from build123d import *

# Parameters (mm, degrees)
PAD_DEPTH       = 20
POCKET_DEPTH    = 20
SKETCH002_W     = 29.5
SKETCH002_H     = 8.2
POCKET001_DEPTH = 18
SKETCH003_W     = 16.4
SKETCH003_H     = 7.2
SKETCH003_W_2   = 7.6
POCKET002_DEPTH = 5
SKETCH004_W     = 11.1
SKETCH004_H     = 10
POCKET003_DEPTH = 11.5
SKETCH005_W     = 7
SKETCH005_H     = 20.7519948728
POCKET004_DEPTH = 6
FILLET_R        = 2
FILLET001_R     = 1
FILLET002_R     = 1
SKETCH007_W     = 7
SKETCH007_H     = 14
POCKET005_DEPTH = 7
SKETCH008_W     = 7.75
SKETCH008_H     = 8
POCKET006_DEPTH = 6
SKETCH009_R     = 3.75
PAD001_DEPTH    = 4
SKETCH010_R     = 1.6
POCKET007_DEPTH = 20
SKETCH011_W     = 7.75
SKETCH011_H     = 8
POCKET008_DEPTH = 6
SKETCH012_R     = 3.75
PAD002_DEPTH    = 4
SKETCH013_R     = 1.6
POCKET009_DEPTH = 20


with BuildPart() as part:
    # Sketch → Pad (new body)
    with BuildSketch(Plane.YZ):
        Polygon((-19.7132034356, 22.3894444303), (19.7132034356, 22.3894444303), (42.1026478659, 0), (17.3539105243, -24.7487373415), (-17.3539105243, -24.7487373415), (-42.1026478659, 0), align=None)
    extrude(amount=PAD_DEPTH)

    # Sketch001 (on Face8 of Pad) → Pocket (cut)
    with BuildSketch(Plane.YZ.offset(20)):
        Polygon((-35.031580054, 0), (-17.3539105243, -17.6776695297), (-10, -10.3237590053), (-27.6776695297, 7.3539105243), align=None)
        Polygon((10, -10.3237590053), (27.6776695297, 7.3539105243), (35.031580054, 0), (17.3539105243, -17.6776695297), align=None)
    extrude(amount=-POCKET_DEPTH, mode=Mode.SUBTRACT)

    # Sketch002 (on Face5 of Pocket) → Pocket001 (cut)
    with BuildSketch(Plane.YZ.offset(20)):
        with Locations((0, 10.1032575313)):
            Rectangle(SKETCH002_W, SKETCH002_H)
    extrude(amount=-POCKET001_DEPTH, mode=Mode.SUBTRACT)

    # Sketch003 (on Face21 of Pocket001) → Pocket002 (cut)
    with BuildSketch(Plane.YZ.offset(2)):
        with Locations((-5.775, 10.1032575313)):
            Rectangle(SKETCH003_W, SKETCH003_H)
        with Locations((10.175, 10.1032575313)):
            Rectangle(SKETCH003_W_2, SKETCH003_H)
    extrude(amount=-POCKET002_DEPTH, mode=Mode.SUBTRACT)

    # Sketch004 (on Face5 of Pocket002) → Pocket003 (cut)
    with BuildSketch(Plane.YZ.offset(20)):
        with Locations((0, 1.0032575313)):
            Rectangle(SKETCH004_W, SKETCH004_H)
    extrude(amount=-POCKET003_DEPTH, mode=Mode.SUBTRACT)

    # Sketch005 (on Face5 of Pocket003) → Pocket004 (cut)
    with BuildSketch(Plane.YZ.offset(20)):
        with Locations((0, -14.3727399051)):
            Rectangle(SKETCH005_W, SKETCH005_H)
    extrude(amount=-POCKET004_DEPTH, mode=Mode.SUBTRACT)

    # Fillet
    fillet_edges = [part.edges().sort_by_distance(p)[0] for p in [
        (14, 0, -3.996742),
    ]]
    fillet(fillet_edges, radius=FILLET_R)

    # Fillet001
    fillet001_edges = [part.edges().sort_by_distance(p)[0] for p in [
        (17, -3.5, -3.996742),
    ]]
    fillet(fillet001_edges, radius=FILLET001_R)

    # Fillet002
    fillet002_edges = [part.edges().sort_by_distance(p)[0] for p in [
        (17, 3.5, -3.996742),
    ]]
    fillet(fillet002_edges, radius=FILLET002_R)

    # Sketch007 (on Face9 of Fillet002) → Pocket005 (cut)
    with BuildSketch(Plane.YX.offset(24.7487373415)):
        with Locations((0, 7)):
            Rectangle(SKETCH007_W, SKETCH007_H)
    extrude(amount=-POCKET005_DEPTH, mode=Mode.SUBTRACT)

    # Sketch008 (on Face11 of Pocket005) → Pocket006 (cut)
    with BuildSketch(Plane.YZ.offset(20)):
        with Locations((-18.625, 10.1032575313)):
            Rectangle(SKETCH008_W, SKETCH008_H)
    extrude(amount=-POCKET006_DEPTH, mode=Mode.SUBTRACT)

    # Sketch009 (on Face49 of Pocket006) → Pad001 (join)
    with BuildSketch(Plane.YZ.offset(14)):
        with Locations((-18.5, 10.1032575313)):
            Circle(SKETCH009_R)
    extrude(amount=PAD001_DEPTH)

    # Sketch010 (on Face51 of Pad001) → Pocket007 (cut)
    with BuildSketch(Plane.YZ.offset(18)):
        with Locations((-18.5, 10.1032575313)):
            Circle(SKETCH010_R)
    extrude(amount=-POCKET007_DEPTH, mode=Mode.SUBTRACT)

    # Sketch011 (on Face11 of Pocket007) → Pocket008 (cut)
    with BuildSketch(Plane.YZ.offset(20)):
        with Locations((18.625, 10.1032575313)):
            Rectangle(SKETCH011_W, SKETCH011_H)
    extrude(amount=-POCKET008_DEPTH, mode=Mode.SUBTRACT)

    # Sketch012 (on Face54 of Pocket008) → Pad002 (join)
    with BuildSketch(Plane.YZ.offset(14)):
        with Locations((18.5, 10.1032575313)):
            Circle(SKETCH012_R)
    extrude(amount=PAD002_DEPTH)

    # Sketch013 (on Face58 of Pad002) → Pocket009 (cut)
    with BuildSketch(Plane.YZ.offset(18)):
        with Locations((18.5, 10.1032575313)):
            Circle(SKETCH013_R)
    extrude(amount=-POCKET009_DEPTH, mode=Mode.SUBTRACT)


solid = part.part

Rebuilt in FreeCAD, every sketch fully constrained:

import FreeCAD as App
import Part
import Sketcher
from FreeCAD import Vector
Q = App.Units.Quantity


def edges_at(feature, points):
    """Names of the edges that pass closest to the given points."""
    edges = feature.Shape.Edges
    near = lambda p: min(range(len(edges)), key=lambda i: edges[i].distToShape(Part.Vertex(*p))[0])
    return sorted({f"Edge{near(p) + 1}" for p in points})


def add_polygon(sketch, points):
    """Adds a closed chain of lines whose ends are joined by coincident constraints."""
    first, n = sketch.GeometryCount, len(points)
    for a, b in zip(points, points[1:] + points[:1]):
        sketch.addGeometry(Part.LineSegment(App.Vector(*a, 0), App.Vector(*b, 0)), False)
    for i in range(n):
        sketch.addConstraint(Sketcher.Constraint("Coincident", first + i, 2, first + (i + 1) % n, 1))

doc = App.newDocument("Part")
params = doc.addObject("Spreadsheet::Sheet", "Params")
for row, (alias, value) in enumerate([
    ("sketch1_length", "35 mm"),
    ("pad1_length", "20 mm"),
    ("sketch2_length", "25 mm"),
    ("sketch2_length2", "10.4 mm"),
    ("pocket1_length", "20 mm"),
    ("sketch3_width", "29.5 mm"),
    ("sketch3_height", "8.2 mm"),
    ("pocket2_length", "18 mm"),
    ("sketch4_width", "16.4 mm"),
    ("sketch4_width2", "7.6 mm"),
    ("sketch4_height", "7.2 mm"),
    ("pocket3_length", "5 mm"),
    ("sketch5_height", "10 mm"),
    ("sketch5_width", "11.1 mm"),
    ("pocket4_length", "11.5 mm"),
    ("sketch6_width", "7 mm"),
    ("pocket5_length", "6 mm"),
    ("fillet_radius", "2 mm"),
    ("fillet2_radius", "1 mm"),
    ("fillet3_radius", "1 mm"),
    ("sketch7_width", "14 mm"),
    ("sketch7_height", "7 mm"),
    ("pocket6_length", "7 mm"),
    ("sketch8_height", "8 mm"),
    ("sketch8_width", "7.75 mm"),
    ("pocket7_length", "6 mm"),
    ("sketch9_diameter", "7.5 mm"),
    ("pad2_length", "4 mm"),
    ("sketch10_diameter", "3.2 mm"),
    ("pocket8_length", "20 mm"),
    ("sketch11_height", "8 mm"),
    ("sketch11_width", "7.75 mm"),
    ("pocket9_length", "6 mm"),
    ("sketch12_diameter", "7.5 mm"),
    ("pad3_length", "4 mm"),
    ("sketch13_diameter", "3.2 mm"),
    ("pocket10_length", "20 mm"),
], start=1):
    params.set(f"A{row}", alias)
    params.set(f"B{row}", "=" + value)
    params.setAlias(f"B{row}", alias)

body = doc.addObject("PartDesign::Body", "Body")

sketch1 = doc.addObject("Sketcher::SketchObject", "Sketch")
body.addObject(sketch1)
sketch1.AttachmentSupport = (doc.YZ_Plane, [""])
sketch1.MapMode = "FlatFace"
add_polygon(sketch1, [(20, 22), (-20, 22), (-42, 0), (-17, -25), (17, -25), (42, 0)])
sketch1.addConstraint(Sketcher.Constraint("Horizontal", 0))
sketch1.addConstraint(Sketcher.Constraint("Horizontal", 3))
sketch1.addConstraint(Sketcher.Constraint("Symmetric", 1, 2, 4, 2, -1, 1))
sketch1.addConstraint(Sketcher.Constraint("PointOnObject", 1, 2, -1))
sketch1.addConstraint(Sketcher.Constraint("Perpendicular", 1, 2))
sketch1.addConstraint(Sketcher.Constraint("Perpendicular", 2, 4))
sketch1.addConstraint(Sketcher.Constraint("Perpendicular", 4, 5))
sketch1.addConstraint(Sketcher.Constraint("Equal", 2, 4))
sketch1.addConstraint(Sketcher.Constraint("Distance", 2, Q("35 mm")))
sketch1.addConstraint(Sketcher.Constraint("DistanceX", 3, 1, 3, 2, Q("34.707821 mm")))
sketch1.addConstraint(Sketcher.Constraint("DistanceX", 0, 2, 0, 1, Q("39.426407 mm")))
sketch1.setExpression("Constraints[14]", "Params.sketch1_length")
pad1 = doc.addObject("PartDesign::Pad", "Pad")
body.addObject(pad1)
pad1.Profile = sketch1
pad1.setExpression("Length", "Params.pad1_length")

sketch2 = doc.addObject("Sketcher::SketchObject", "Sketch001")
body.addObject(sketch2)
sketch2.AttachmentSupport = (doc.YZ_Plane, [""])
sketch2.MapMode = "FlatFace"
sketch2.AttachmentOffset = App.Placement(Vector(0, 0, 20), App.Rotation())
add_polygon(sketch2, [(-35, 0), (-17, -18), (-10, -10), (-28, 7)])
add_polygon(sketch2, [(28, 7), (10, -10), (17, -18), (35, 0)])
sketch2.addConstraint(Sketcher.Constraint("Symmetric", 3, 2, 6, 2, -1, 1))
sketch2.addConstraint(Sketcher.Constraint("Symmetric", 1, 2, 4, 2, -2))
sketch2.addConstraint(Sketcher.Constraint("Symmetric", 0, 2, 5, 2, -2))
sketch2.addConstraint(Sketcher.Constraint("Symmetric", 2, 2, 7, 2, -2))
sketch2.addConstraint(Sketcher.Constraint("PointOnObject", 3, 2, -1))
sketch2.addConstraint(Sketcher.Constraint("Perpendicular", 0, 1))
sketch2.addConstraint(Sketcher.Constraint("Perpendicular", 1, 2))
sketch2.addConstraint(Sketcher.Constraint("Perpendicular", 2, 3))
sketch2.addConstraint(Sketcher.Constraint("Parallel", 3, 4))
sketch2.addConstraint(Sketcher.Constraint("Distance", 0, Q("25 mm")))
sketch2.addConstraint(Sketcher.Constraint("DistanceX", 1, 2, -1, 1, Q("10 mm")))
sketch2.addConstraint(Sketcher.Constraint("Distance", 1, Q("10.4 mm")))
sketch2.setExpression("Constraints[17]", "Params.sketch2_length")
sketch2.setExpression("Constraints[19]", "Params.sketch2_length2")
pocket1 = doc.addObject("PartDesign::Pocket", "Pocket")
body.addObject(pocket1)
pocket1.Profile = sketch2
pocket1.setExpression("Length", "Params.pocket1_length")

sketch3 = doc.addObject("Sketcher::SketchObject", "Sketch002")
body.addObject(sketch3)
sketch3.AttachmentSupport = (doc.YZ_Plane, [""])
sketch3.MapMode = "FlatFace"
sketch3.AttachmentOffset = App.Placement(Vector(0, 0, 20), App.Rotation())
add_polygon(sketch3, [(-15, 14), (-15, 6), (15, 6), (15, 14)])
sketch3.addConstraint(Sketcher.Constraint("Vertical", 0))
sketch3.addConstraint(Sketcher.Constraint("Horizontal", 1))
sketch3.addConstraint(Sketcher.Constraint("Vertical", 2))
sketch3.addConstraint(Sketcher.Constraint("Horizontal", 3))
sketch3.addConstraint(Sketcher.Constraint("DistanceX", 1, 1, 1, 2, Q("29.5 mm")))
sketch3.addConstraint(Sketcher.Constraint("DistanceY", 0, 2, 0, 1, Q("8.2 mm")))
sketch3.addConstraint(Sketcher.Constraint("DistanceX", 0, 2, -1, 1, Q("14.75 mm")))
sketch3.addConstraint(Sketcher.Constraint("DistanceY", -1, 1, 0, 2, Q("6.003258 mm")))
sketch3.setExpression("Constraints[8]", "Params.sketch3_width")
sketch3.setExpression("Constraints[9]", "Params.sketch3_height")
pocket2 = doc.addObject("PartDesign::Pocket", "Pocket001")
body.addObject(pocket2)
pocket2.Profile = sketch3
pocket2.setExpression("Length", "Params.pocket2_length")

sketch4 = doc.addObject("Sketcher::SketchObject", "Sketch003")
body.addObject(sketch4)
sketch4.AttachmentSupport = (doc.YZ_Plane, [""])
sketch4.MapMode = "FlatFace"
sketch4.AttachmentOffset = App.Placement(Vector(0, 0, 2), App.Rotation())
add_polygon(sketch4, [(-14, 14), (-14, 7), (2, 7), (2, 14)])
add_polygon(sketch4, [(6, 14), (6, 7), (14, 7), (14, 14)])
sketch4.addConstraint(Sketcher.Constraint("Vertical", 0))
sketch4.addConstraint(Sketcher.Constraint("Horizontal", 1))
sketch4.addConstraint(Sketcher.Constraint("Vertical", 2))
sketch4.addConstraint(Sketcher.Constraint("Horizontal", 3))
sketch4.addConstraint(Sketcher.Constraint("Vertical", 4))
sketch4.addConstraint(Sketcher.Constraint("Horizontal", 5))
sketch4.addConstraint(Sketcher.Constraint("Vertical", 6))
sketch4.addConstraint(Sketcher.Constraint("Horizontal", 7))
sketch4.addConstraint(Sketcher.Constraint("Symmetric", 0, 2, 5, 2, -2))
sketch4.addConstraint(Sketcher.Constraint("Horizontal", 3, 2, 6, 2))
sketch4.addConstraint(Sketcher.Constraint("DistanceX", 1, 1, 1, 2, Q("16.4 mm")))
sketch4.addConstraint(Sketcher.Constraint("DistanceX", 5, 1, 5, 2, Q("7.6 mm")))
sketch4.addConstraint(Sketcher.Constraint("DistanceY", 0, 2, 0, 1, Q("7.2 mm")))
sketch4.addConstraint(Sketcher.Constraint("DistanceX", 1, 2, 4, 2, Q("3.95 mm")))
sketch4.addConstraint(Sketcher.Constraint("DistanceY", -1, 1, 0, 2, Q("6.503258 mm")))
sketch4.setExpression("Constraints[18]", "Params.sketch4_width")
sketch4.setExpression("Constraints[19]", "Params.sketch4_width2")
sketch4.setExpression("Constraints[20]", "Params.sketch4_height")
pocket3 = doc.addObject("PartDesign::Pocket", "Pocket002")
body.addObject(pocket3)
pocket3.Profile = sketch4
pocket3.setExpression("Length", "Params.pocket3_length")

sketch5 = doc.addObject("Sketcher::SketchObject", "Sketch004")
body.addObject(sketch5)
sketch5.AttachmentSupport = (doc.YZ_Plane, [""])
sketch5.MapMode = "FlatFace"
sketch5.AttachmentOffset = App.Placement(Vector(0, 0, 20), App.Rotation())
add_polygon(sketch5, [(-6, 6), (-6, -4), (6, -4), (6, 6)])
sketch5.addConstraint(Sketcher.Constraint("Vertical", 0))
sketch5.addConstraint(Sketcher.Constraint("Horizontal", 1))
sketch5.addConstraint(Sketcher.Constraint("Vertical", 2))
sketch5.addConstraint(Sketcher.Constraint("Horizontal", 3))
sketch5.addConstraint(Sketcher.Constraint("DistanceY", 0, 2, 0, 1, Q("10 mm")))
sketch5.addConstraint(Sketcher.Constraint("DistanceX", 1, 1, 1, 2, Q("11.1 mm")))
sketch5.addConstraint(Sketcher.Constraint("DistanceX", 0, 2, -1, 1, Q("5.55 mm")))
sketch5.addConstraint(Sketcher.Constraint("DistanceY", 0, 2, -1, 1, Q("3.996742 mm")))
sketch5.setExpression("Constraints[8]", "Params.sketch5_height")
sketch5.setExpression("Constraints[9]", "Params.sketch5_width")
pocket4 = doc.addObject("PartDesign::Pocket", "Pocket003")
body.addObject(pocket4)
pocket4.Profile = sketch5
pocket4.setExpression("Length", "Params.pocket4_length")

sketch6 = doc.addObject("Sketcher::SketchObject", "Sketch005")
body.addObject(sketch6)
sketch6.AttachmentSupport = (doc.YZ_Plane, [""])
sketch6.MapMode = "FlatFace"
sketch6.AttachmentOffset = App.Placement(Vector(0, 0, 20), App.Rotation())
add_polygon(sketch6, [(-4, -4), (-4, -25), (4, -25), (4, -4)])
sketch6.addConstraint(Sketcher.Constraint("Vertical", 0))
sketch6.addConstraint(Sketcher.Constraint("Horizontal", 1))
sketch6.addConstraint(Sketcher.Constraint("Vertical", 2))
sketch6.addConstraint(Sketcher.Constraint("Horizontal", 3))
sketch6.addConstraint(Sketcher.Constraint("DistanceX", 1, 1, 1, 2, Q("7 mm")))
sketch6.addConstraint(Sketcher.Constraint("DistanceX", 0, 2, -1, 1, Q("3.5 mm")))
sketch6.addConstraint(Sketcher.Constraint("DistanceY", 0, 2, 0, 1, Q("20.751995 mm")))
sketch6.addConstraint(Sketcher.Constraint("DistanceY", 0, 2, -1, 1, Q("24.748737 mm")))
sketch6.setExpression("Constraints[8]", "Params.sketch6_width")
pocket5 = doc.addObject("PartDesign::Pocket", "Pocket004")
body.addObject(pocket5)
pocket5.Profile = sketch6
pocket5.setExpression("Length", "Params.pocket5_length")
doc.recompute()

fillet = doc.addObject("PartDesign::Fillet", "Fillet")
body.addObject(fillet)
fillet.Base = (pocket5, edges_at(pocket5, [(14, 0, -3.997)]))
fillet.setExpression("Radius", "Params.fillet_radius")
doc.recompute()

fillet2 = doc.addObject("PartDesign::Fillet", "Fillet001")
body.addObject(fillet2)
fillet2.Base = (fillet, edges_at(fillet, [(16, -3.5, -3.997)]))
fillet2.setExpression("Radius", "Params.fillet2_radius")
doc.recompute()

fillet3 = doc.addObject("PartDesign::Fillet", "Fillet002")
body.addObject(fillet3)
fillet3.Base = (fillet2, edges_at(fillet2, [(16, 3.5, -3.997)]))
fillet3.setExpression("Radius", "Params.fillet3_radius")

sketch7 = doc.addObject("Sketcher::SketchObject", "Sketch006")
body.addObject(sketch7)
sketch7.AttachmentSupport = (doc.XY_Plane, [""])
sketch7.MapMode = "FlatFace"
sketch7.AttachmentOffset = App.Placement(Vector(0, 0, -24.748737), App.Rotation())
add_polygon(sketch7, [(14, -4), (0, -4), (0, 4), (14, 4)])
sketch7.addConstraint(Sketcher.Constraint("Horizontal", 0))
sketch7.addConstraint(Sketcher.Constraint("Vertical", 1))
sketch7.addConstraint(Sketcher.Constraint("Horizontal", 2))
sketch7.addConstraint(Sketcher.Constraint("Vertical", 3))
sketch7.addConstraint(Sketcher.Constraint("Symmetric", 0, 2, 1, 2, -1, 1))
sketch7.addConstraint(Sketcher.Constraint("DistanceX", 0, 2, 0, 1, Q("14 mm")))
sketch7.addConstraint(Sketcher.Constraint("DistanceY", 1, 1, 1, 2, Q("7 mm")))
sketch7.setExpression("Constraints[9]", "Params.sketch7_width")
sketch7.setExpression("Constraints[10]", "Params.sketch7_height")
pocket6 = doc.addObject("PartDesign::Pocket", "Pocket005")
body.addObject(pocket6)
pocket6.Profile = sketch7
pocket6.setExpression("Length", "Params.pocket6_length")
pocket6.Reversed = True

sketch8 = doc.addObject("Sketcher::SketchObject", "Sketch007")
body.addObject(sketch8)
sketch8.AttachmentSupport = (doc.YZ_Plane, [""])
sketch8.MapMode = "FlatFace"
sketch8.AttachmentOffset = App.Placement(Vector(0, 0, 20), App.Rotation())
add_polygon(sketch8, [(-22, 14), (-22, 6), (-15, 6), (-15, 14)])
sketch8.addConstraint(Sketcher.Constraint("Vertical", 0))
sketch8.addConstraint(Sketcher.Constraint("Horizontal", 1))
sketch8.addConstraint(Sketcher.Constraint("Vertical", 2))
sketch8.addConstraint(Sketcher.Constraint("Horizontal", 3))
sketch8.addConstraint(Sketcher.Constraint("DistanceY", 0, 2, 0, 1, Q("8 mm")))
sketch8.addConstraint(Sketcher.Constraint("DistanceX", 1, 1, 1, 2, Q("7.75 mm")))
sketch8.addConstraint(Sketcher.Constraint("DistanceX", 0, 2, -1, 1, Q("22.5 mm")))
sketch8.addConstraint(Sketcher.Constraint("DistanceY", -1, 1, 0, 2, Q("6.103258 mm")))
sketch8.setExpression("Constraints[8]", "Params.sketch8_height")
sketch8.setExpression("Constraints[9]", "Params.sketch8_width")
pocket7 = doc.addObject("PartDesign::Pocket", "Pocket006")
body.addObject(pocket7)
pocket7.Profile = sketch8
pocket7.setExpression("Length", "Params.pocket7_length")

sketch9 = doc.addObject("Sketcher::SketchObject", "Sketch008")
body.addObject(sketch9)
sketch9.AttachmentSupport = (doc.YZ_Plane, [""])
sketch9.MapMode = "FlatFace"
sketch9.AttachmentOffset = App.Placement(Vector(0, 0, 14), App.Rotation())
sketch9.addGeometry(Part.Circle(Vector(-18.5, 10.1, 0), Vector(0, 0, 1), 3.8), False)
sketch9.addConstraint(Sketcher.Constraint("Diameter", 0, Q("7.5 mm")))
sketch9.addConstraint(Sketcher.Constraint("DistanceX", 0, 3, -1, 1, Q("18.5 mm")))
sketch9.addConstraint(Sketcher.Constraint("DistanceY", -1, 1, 0, 3, Q("10.103258 mm")))
sketch9.setExpression("Constraints[0]", "Params.sketch9_diameter")
pad2 = doc.addObject("PartDesign::Pad", "Pad001")
body.addObject(pad2)
pad2.Profile = sketch9
pad2.setExpression("Length", "Params.pad2_length")

sketch10 = doc.addObject("Sketcher::SketchObject", "Sketch009")
body.addObject(sketch10)
sketch10.AttachmentSupport = (doc.YZ_Plane, [""])
sketch10.MapMode = "FlatFace"
sketch10.AttachmentOffset = App.Placement(Vector(0, 0, 18), App.Rotation())
sketch10.addGeometry(Part.Circle(Vector(-18.5, 10.1, 0), Vector(0, 0, 1), 1.6), False)
sketch10.addConstraint(Sketcher.Constraint("Diameter", 0, Q("3.2 mm")))
sketch10.addConstraint(Sketcher.Constraint("DistanceX", 0, 3, -1, 1, Q("18.5 mm")))
sketch10.addConstraint(Sketcher.Constraint("DistanceY", -1, 1, 0, 3, Q("10.103258 mm")))
sketch10.setExpression("Constraints[0]", "Params.sketch10_diameter")
pocket8 = doc.addObject("PartDesign::Pocket", "Pocket007")
body.addObject(pocket8)
pocket8.Profile = sketch10
pocket8.setExpression("Length", "Params.pocket8_length")

sketch11 = doc.addObject("Sketcher::SketchObject", "Sketch010")
body.addObject(sketch11)
sketch11.AttachmentSupport = (doc.YZ_Plane, [""])
sketch11.MapMode = "FlatFace"
sketch11.AttachmentOffset = App.Placement(Vector(0, 0, 20), App.Rotation())
add_polygon(sketch11, [(15, 14), (15, 6), (22, 6), (22, 14)])
sketch11.addConstraint(Sketcher.Constraint("Vertical", 0))
sketch11.addConstraint(Sketcher.Constraint("Horizontal", 1))
sketch11.addConstraint(Sketcher.Constraint("Vertical", 2))
sketch11.addConstraint(Sketcher.Constraint("Horizontal", 3))
sketch11.addConstraint(Sketcher.Constraint("DistanceY", 0, 2, 0, 1, Q("8 mm")))
sketch11.addConstraint(Sketcher.Constraint("DistanceX", 1, 1, 1, 2, Q("7.75 mm")))
sketch11.addConstraint(Sketcher.Constraint("DistanceX", -1, 1, 1, 2, Q("22.5 mm")))
sketch11.addConstraint(Sketcher.Constraint("DistanceY", -1, 1, 0, 2, Q("6.103258 mm")))
sketch11.setExpression("Constraints[8]", "Params.sketch11_height")
sketch11.setExpression("Constraints[9]", "Params.sketch11_width")
pocket9 = doc.addObject("PartDesign::Pocket", "Pocket008")
body.addObject(pocket9)
pocket9.Profile = sketch11
pocket9.setExpression("Length", "Params.pocket9_length")

sketch12 = doc.addObject("Sketcher::SketchObject", "Sketch011")
body.addObject(sketch12)
sketch12.AttachmentSupport = (doc.YZ_Plane, [""])
sketch12.MapMode = "FlatFace"
sketch12.AttachmentOffset = App.Placement(Vector(0, 0, 14), App.Rotation())
sketch12.addGeometry(Part.Circle(Vector(18.5, 10.1, 0), Vector(0, 0, 1), 3.8), False)
sketch12.addConstraint(Sketcher.Constraint("Diameter", 0, Q("7.5 mm")))
sketch12.addConstraint(Sketcher.Constraint("DistanceX", -1, 1, 0, 3, Q("18.5 mm")))
sketch12.addConstraint(Sketcher.Constraint("DistanceY", -1, 1, 0, 3, Q("10.103258 mm")))
sketch12.setExpression("Constraints[0]", "Params.sketch12_diameter")
pad3 = doc.addObject("PartDesign::Pad", "Pad002")
body.addObject(pad3)
pad3.Profile = sketch12
pad3.setExpression("Length", "Params.pad3_length")

sketch13 = doc.addObject("Sketcher::SketchObject", "Sketch012")
body.addObject(sketch13)
sketch13.AttachmentSupport = (doc.YZ_Plane, [""])
sketch13.MapMode = "FlatFace"
sketch13.AttachmentOffset = App.Placement(Vector(0, 0, 18), App.Rotation())
sketch13.addGeometry(Part.Circle(Vector(18.5, 10.1, 0), Vector(0, 0, 1), 1.6), False)
sketch13.addConstraint(Sketcher.Constraint("Diameter", 0, Q("3.2 mm")))
sketch13.addConstraint(Sketcher.Constraint("DistanceX", -1, 1, 0, 3, Q("18.5 mm")))
sketch13.addConstraint(Sketcher.Constraint("DistanceY", -1, 1, 0, 3, Q("10.103258 mm")))
sketch13.setExpression("Constraints[0]", "Params.sketch13_diameter")
pocket10 = doc.addObject("PartDesign::Pocket", "Pocket009")
body.addObject(pocket10)
pocket10.Profile = sketch13
pocket10.setExpression("Length", "Params.pocket10_length")

doc.recompute()
